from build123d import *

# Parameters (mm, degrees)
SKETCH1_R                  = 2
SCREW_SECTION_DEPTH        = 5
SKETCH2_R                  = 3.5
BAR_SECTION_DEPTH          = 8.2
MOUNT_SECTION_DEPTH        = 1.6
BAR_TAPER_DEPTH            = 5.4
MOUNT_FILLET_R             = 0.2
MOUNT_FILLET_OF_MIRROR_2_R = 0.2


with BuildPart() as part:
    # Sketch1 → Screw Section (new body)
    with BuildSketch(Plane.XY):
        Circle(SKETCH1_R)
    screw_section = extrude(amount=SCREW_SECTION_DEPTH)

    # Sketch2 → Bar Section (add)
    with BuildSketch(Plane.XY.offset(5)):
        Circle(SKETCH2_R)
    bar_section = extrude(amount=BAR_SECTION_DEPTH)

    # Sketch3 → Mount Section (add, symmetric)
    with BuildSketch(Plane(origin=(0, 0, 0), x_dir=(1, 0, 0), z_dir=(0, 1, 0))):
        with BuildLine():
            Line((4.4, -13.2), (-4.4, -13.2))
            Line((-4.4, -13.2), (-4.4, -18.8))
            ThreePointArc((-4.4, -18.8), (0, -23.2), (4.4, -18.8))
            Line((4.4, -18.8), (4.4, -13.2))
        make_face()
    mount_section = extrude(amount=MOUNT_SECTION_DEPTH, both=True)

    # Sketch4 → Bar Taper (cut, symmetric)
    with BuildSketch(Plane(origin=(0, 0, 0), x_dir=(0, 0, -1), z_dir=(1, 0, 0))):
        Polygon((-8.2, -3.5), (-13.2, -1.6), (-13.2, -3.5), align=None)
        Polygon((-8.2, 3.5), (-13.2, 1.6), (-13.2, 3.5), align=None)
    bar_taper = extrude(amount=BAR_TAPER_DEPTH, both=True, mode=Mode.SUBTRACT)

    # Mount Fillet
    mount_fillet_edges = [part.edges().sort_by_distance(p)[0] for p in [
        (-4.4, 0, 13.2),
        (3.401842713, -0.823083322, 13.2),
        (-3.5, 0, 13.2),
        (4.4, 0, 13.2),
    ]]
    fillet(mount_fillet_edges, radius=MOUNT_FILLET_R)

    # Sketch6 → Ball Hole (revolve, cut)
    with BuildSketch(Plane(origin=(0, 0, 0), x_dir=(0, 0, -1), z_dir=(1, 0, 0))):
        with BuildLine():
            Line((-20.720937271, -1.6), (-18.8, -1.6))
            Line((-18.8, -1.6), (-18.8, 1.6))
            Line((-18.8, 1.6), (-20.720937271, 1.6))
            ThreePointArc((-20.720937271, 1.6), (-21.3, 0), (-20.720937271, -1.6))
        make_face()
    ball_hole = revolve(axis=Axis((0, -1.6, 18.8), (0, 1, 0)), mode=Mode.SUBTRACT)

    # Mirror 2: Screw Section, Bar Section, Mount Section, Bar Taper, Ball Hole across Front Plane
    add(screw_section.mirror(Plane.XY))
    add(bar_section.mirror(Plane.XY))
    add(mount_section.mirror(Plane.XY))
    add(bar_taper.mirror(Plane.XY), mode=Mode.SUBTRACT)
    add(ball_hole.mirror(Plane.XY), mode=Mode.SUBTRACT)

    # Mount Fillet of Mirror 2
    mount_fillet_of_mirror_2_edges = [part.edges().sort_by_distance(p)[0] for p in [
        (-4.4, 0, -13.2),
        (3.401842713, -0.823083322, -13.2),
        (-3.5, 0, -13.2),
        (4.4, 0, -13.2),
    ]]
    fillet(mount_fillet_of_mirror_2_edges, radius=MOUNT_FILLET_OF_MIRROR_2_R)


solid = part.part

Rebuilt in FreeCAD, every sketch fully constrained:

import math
import FreeCAD as App
import Part
import Sketcher


def edges_at(feature, points):
    """Names of the edges that pass closest to the given points."""
    edges = feature.Shape.Edges
    near = lambda p: min(range(len(edges)), key=lambda i: edges[i].distToShape(Part.Vertex(*p))[0])
    return sorted({f"Edge{near(p) + 1}" for p in points})

doc = App.newDocument("Part")
params = doc.addObject("Spreadsheet::Sheet", "Params")
for row, (alias, value) in enumerate([
    ("sketch1_diameter", "4 mm"),
    ("pad1_length", "5 mm"),
    ("sketch2_diameter", "7 mm"),
    ("pad2_length", "8.2 mm"),
    ("sketch3_radius", "4.4 mm"),
    ("sketch3_height", "5.6 mm"),
    ("pad3_length", "3.2 mm"),
    ("sketch4_height", "5 mm"),
    ("sketch4_width", "1.9 mm"),
    ("pocket1_length", "10.8 mm"),
    ("fillet_radius", "0.2 mm"),
    ("sketch5_radius", "2.5 mm"),
    ("sketch5_width", "3.2 mm"),
    ("groove_angle", "360 deg"),
    ("fillet2_radius", "0.2 mm"),
], start=1):
    params.set(f"A{row}", alias)
    params.set(f"B{row}", "=" + value)
    params.setAlias(f"B{row}", alias)

body = doc.addObject("PartDesign::Body", "Body")

# Sketch on XY plane
sketch1 = body.newObject("Sketcher::SketchObject", "Sketch")
sketch1.AttachmentSupport = (doc.getObject("XY_Plane"), [""])
sketch1.MapMode = "FlatFace"
sketch1.addGeometry(Part.Circle(App.Vector(0, 0, 0), App.Vector(0, 0, 1), 2), False)
sketch1.addConstraint([
    Sketcher.Constraint("Coincident", 0, 3, -1, 1),
    Sketcher.Constraint("Diameter", 0, 4.0),
])
sketch1.setExpression("Constraints[1]", "Params.sketch1_diameter")
pad1 = body.newObject("PartDesign::Pad", "Pad")
pad1.Profile = sketch1
pad1.setExpression("Length", "Params.pad1_length")

# Sketch on XY plane
sketch2 = body.newObject("Sketcher::SketchObject", "Sketch001")
sketch2.AttachmentSupport = (doc.getObject("XY_Plane"), [""])
sketch2.MapMode = "FlatFace"
sketch2.AttachmentOffset = App.Placement(App.Vector(0, 0, 5), App.Rotation())
sketch2.addGeometry(Part.Circle(App.Vector(0, 0, 0), App.Vector(0, 0, 1), 3.5), False)
sketch2.addConstraint([
    Sketcher.Constraint("Coincident", 0, 3, -1, 1),
    Sketcher.Constraint("Diameter", 0, 7.0),
])
sketch2.setExpression("Constraints[1]", "Params.sketch2_diameter")
pad2 = body.newObject("PartDesign::Pad", "Pad001")
pad2.Profile = sketch2
pad2.setExpression("Length", "Params.pad2_length")

# Sketch on XZ plane
sketch3 = body.newObject("Sketcher::SketchObject", "Sketch002")
sketch3.AttachmentSupport = (doc.getObject("XZ_Plane"), [""])
sketch3.MapMode = "FlatFace"
sketch3.addGeometry([
    Part.LineSegment(App.Vector(4.4, 13.2, 0), App.Vector(-4.4, 13.2, 0)),
    Part.LineSegment(App.Vector(-4.4, 13.2, 0), App.Vector(-4.4, 18.8, 0)),
    Part.ArcOfCircle(Part.Circle(App.Vector(0, 18.8, 0), App.Vector(0, 0, 1), 4.4), math.radians(0), math.radians(180)),
    Part.LineSegment(App.Vector(4.4, 18.8, 0), App.Vector(4.4, 13.2, 0)),
], False)
sketch3.addConstraint([
    Sketcher.Constraint("Coincident", 0, 2, 1, 1),
    Sketcher.Constraint("Tangent", 1, 2, 2, 2),
    Sketcher.Constraint("Tangent", 2, 1, 3, 1),
    Sketcher.Constraint("Coincident", 3, 2, 0, 1),
    Sketcher.Constraint("Horizontal", 0),
    Sketcher.Constraint("Vertical", 1),
    Sketcher.Constraint("Vertical", 3),
    Sketcher.Constraint("PointOnObject", 2, 3, -2),
    Sketcher.Constraint("Radius", 2, 4.4),
    Sketcher.Constraint("DistanceY", 1, 1, 1, 2, 5.6),
    Sketcher.Constraint("DistanceY", -1, 1, 2, 3, 18.8),
])
sketch3.setExpression("Constraints[8]", "Params.sketch3_radius")
sketch3.setExpression("Constraints[9]", "Params.sketch3_height")
pad3 = body.newObject("PartDesign::Pad", "Pad002")
pad3.Profile = sketch3
pad3.setExpression("Length", "Params.pad3_length")
pad3.Midplane = True

# Sketch on YZ plane
sketch4 = body.newObject("Sketcher::SketchObject", "Sketch003")
sketch4.AttachmentSupport = (doc.getObject("YZ_Plane"), [""])
sketch4.MapMode = "FlatFace"
sketch4.addGeometry([
    Part.LineSegment(App.Vector(-3.5, 8.2, 0), App.Vector(-1.6, 13.2, 0)),  # 0
    Part.LineSegment(App.Vector(-1.6, 13.2, 0), App.Vector(-3.5, 13.2, 0)),  # 1
    Part.LineSegment(App.Vector(-3.5, 13.2, 0), App.Vector(-3.5, 8.2, 0)),  # 2
    Part.LineSegment(App.Vector(1.6, 13.2, 0), App.Vector(3.5, 8.2, 0)),  # 3
    Part.LineSegment(App.Vector(3.5, 8.2, 0), App.Vector(3.5, 13.2, 0)),  # 4
    Part.LineSegment(App.Vector(3.5, 13.2, 0), App.Vector(1.6, 13.2, 0)),  # 5
], False)
sketch4.addConstraint([
    Sketcher.Constraint("Coincident", 0, 2, 1, 1),
    Sketcher.Constraint("Coincident", 1, 2, 2, 1),
    Sketcher.Constraint("Coincident", 2, 2, 0, 1),
    Sketcher.Constraint("Coincident", 3, 2, 4, 1),
    Sketcher.Constraint("Coincident", 4, 2, 5, 1),
    Sketcher.Constraint("Coincident", 5, 2, 3, 1),
    Sketcher.Constraint("Horizontal", 1),
    Sketcher.Constraint("Vertical", 2),
    Sketcher.Constraint("Vertical", 4),
    Sketcher.Constraint("Horizontal", 5),
    Sketcher.Constraint("Symmetric", 2, 2, 3, 2, -2),
    Sketcher.Constraint("Symmetric", 0, 2, 5, 2, -2),
    Sketcher.Constraint("DistanceY", 2, 2, 2, 1, 5.0),
    Sketcher.Constraint("DistanceX", 1, 2, 1, 1, 1.9),
    Sketcher.Constraint("DistanceX", 2, 2, 3, 2, 7.0),
    Sketcher.Constraint("DistanceY", -1, 1, 0, 2, 13.2),
])
sketch4.setExpression("Constraints[12]", "Params.sketch4_height")
sketch4.setExpression("Constraints[13]", "Params.sketch4_width")
pocket1 = body.newObject("PartDesign::Pocket", "Pocket")
pocket1.Profile = sketch4
pocket1.setExpression("Length", "Params.pocket1_length")
pocket1.Midplane = True
doc.recompute()

fillet = body.newObject("PartDesign::Fillet", "Fillet")
fillet.Base = (pocket1, edges_at(pocket1, [
    (-4.4, 0, 13.2),
    (3.402, -0.823, 13.2),
    (-3.5, 0, 13.2),
    (4.4, 0, 13.2),
]))
fillet.setExpression("Radius", "Params.fillet_radius")

# Sketch on YZ plane
sketch5 = body.newObject("Sketcher::SketchObject", "Sketch004")
sketch5.AttachmentSupport = (doc.getObject("YZ_Plane"), [""])
sketch5.MapMode = "FlatFace"
sketch5.addGeometry([
    Part.LineSegment(App.Vector(-1.6, 20.720937, 0), App.Vector(-1.6, 18.8, 0)),
    Part.LineSegment(App.Vector(-1.6, 18.8, 0), App.Vector(1.6, 18.8, 0)),
    Part.LineSegment(App.Vector(1.6, 18.8, 0), App.Vector(1.6, 20.720937, 0)),
    Part.ArcOfCircle(Part.Circle(App.Vector(0, 18.8, 0), App.Vector(0, 0, 1), 2.5), math.radians(50.20818), math.radians(129.79182)),
], False)
sketch5.addGeometry(Part.LineSegment(App.Vector(-1.6, 18.8, 0), App.Vector(1.6, 18.8, 0)), True)  # axis
sketch5.addConstraint([
    Sketcher.Constraint("Coincident", 0, 2, 1, 1),
    Sketcher.Constraint("Coincident", 1, 2, 2, 1),
    Sketcher.Constraint("Coincident", 2, 2, 3, 1),
    Sketcher.Constraint("Coincident", 3, 2, 0, 1),
    Sketcher.Constraint("Vertical", 0),
    Sketcher.Constraint("Horizontal", 1),
    Sketcher.Constraint("Vertical", 2),
    Sketcher.Constraint("Horizontal", 4),
    Sketcher.Constraint("Coincident", 4, 1, 0, 2),
    Sketcher.Constraint("Symmetric", 2, 2, 3, 2, -2),
    Sketcher.Constraint("Horizontal", 3, 3, 0, 2),
    Sketcher.Constraint("Vertical", 2, 2, 4, 2),
    Sketcher.Constraint("Radius", 3, 2.5),
    Sketcher.Constraint("DistanceX", 1, 1, 1, 2, 3.2),
    Sketcher.Constraint("DistanceY", -1, 1, 3, 3, 18.8),
])
sketch5.setExpression("Constraints[12]", "Params.sketch5_radius")
sketch5.setExpression("Constraints[13]", "Params.sketch5_width")
groove = body.newObject("PartDesign::Groove", "Groove")
groove.Profile = sketch5
groove.ReferenceAxis = (sketch5, ["Axis0"])
groove.setExpression("Angle", "Params.groove_angle")
doc.recompute()

mirrored = body.newObject("PartDesign::Mirrored", "Mirrored")
mirrored.Originals = [pad1, pad2, pad3, pocket1, groove]
mirrored.MirrorPlane = (doc.getObject("XY_Plane"), [""])
body.Tip = mirrored
doc.recompute()

fillet2 = body.newObject("PartDesign::Fillet", "Fillet001")
fillet2.Base = (mirrored, edges_at(mirrored, [
    (-4.4, 0, -13.2),
    (3.402, -0.823, -13.2),
    (-3.5, 0, -13.2),
    (4.4, 0, -13.2),
]))
fillet2.setExpression("Radius", "Params.fillet2_radius")

doc.recompute()
